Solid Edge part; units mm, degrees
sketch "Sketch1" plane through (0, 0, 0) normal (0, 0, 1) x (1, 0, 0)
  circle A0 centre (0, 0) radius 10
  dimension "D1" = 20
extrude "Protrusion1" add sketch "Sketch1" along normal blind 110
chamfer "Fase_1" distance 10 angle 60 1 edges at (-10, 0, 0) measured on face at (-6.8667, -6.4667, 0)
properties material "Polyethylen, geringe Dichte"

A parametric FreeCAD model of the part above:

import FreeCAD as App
import Part
import Sketcher

V = App.Vector
Q = App.Units.Quantity


def edges_at(feature, points):
    """Names of the edges that pass closest to the given points."""
    edges = feature.Shape.Edges
    near = lambda p: min(range(len(edges)), key=lambda i: edges[i].distToShape(Part.Vertex(*p))[0])
    return sorted({f"Edge{near(p) + 1}" for p in points})

doc = App.newDocument("Part")
body = doc.addObject("PartDesign::Body", "Body")

sketch1 = body.newObject("Sketcher::SketchObject", "Sketch")
sketch1.AttachmentSupport = (doc.getObject("XY_Plane"), [""])
sketch1.MapMode = "FlatFace"
sketch1.addGeometry(Part.Circle(V(0, 0, 0), V(0, 0, 1), 10), False)
sketch1.addConstraint([
    Sketcher.Constraint("Coincident", 0, 3, -1, 1),
    Sketcher.Constraint("Diameter", 0, Q("20 mm")),
])
pad1 = body.newObject("PartDesign::Pad", "Pad")
pad1.Profile = sketch1
pad1.Length = 110
doc.recompute()

chamfer = body.newObject("PartDesign::Chamfer", "Chamfer")
chamfer.Base = (pad1, edges_at(pad1, [(-10, 0, 0)]))
chamfer.ChamferType = "Distance and Angle"
chamfer.Size = 10
chamfer.Angle = 60
chamfer.FlipDirection = True

doc.recompute()
